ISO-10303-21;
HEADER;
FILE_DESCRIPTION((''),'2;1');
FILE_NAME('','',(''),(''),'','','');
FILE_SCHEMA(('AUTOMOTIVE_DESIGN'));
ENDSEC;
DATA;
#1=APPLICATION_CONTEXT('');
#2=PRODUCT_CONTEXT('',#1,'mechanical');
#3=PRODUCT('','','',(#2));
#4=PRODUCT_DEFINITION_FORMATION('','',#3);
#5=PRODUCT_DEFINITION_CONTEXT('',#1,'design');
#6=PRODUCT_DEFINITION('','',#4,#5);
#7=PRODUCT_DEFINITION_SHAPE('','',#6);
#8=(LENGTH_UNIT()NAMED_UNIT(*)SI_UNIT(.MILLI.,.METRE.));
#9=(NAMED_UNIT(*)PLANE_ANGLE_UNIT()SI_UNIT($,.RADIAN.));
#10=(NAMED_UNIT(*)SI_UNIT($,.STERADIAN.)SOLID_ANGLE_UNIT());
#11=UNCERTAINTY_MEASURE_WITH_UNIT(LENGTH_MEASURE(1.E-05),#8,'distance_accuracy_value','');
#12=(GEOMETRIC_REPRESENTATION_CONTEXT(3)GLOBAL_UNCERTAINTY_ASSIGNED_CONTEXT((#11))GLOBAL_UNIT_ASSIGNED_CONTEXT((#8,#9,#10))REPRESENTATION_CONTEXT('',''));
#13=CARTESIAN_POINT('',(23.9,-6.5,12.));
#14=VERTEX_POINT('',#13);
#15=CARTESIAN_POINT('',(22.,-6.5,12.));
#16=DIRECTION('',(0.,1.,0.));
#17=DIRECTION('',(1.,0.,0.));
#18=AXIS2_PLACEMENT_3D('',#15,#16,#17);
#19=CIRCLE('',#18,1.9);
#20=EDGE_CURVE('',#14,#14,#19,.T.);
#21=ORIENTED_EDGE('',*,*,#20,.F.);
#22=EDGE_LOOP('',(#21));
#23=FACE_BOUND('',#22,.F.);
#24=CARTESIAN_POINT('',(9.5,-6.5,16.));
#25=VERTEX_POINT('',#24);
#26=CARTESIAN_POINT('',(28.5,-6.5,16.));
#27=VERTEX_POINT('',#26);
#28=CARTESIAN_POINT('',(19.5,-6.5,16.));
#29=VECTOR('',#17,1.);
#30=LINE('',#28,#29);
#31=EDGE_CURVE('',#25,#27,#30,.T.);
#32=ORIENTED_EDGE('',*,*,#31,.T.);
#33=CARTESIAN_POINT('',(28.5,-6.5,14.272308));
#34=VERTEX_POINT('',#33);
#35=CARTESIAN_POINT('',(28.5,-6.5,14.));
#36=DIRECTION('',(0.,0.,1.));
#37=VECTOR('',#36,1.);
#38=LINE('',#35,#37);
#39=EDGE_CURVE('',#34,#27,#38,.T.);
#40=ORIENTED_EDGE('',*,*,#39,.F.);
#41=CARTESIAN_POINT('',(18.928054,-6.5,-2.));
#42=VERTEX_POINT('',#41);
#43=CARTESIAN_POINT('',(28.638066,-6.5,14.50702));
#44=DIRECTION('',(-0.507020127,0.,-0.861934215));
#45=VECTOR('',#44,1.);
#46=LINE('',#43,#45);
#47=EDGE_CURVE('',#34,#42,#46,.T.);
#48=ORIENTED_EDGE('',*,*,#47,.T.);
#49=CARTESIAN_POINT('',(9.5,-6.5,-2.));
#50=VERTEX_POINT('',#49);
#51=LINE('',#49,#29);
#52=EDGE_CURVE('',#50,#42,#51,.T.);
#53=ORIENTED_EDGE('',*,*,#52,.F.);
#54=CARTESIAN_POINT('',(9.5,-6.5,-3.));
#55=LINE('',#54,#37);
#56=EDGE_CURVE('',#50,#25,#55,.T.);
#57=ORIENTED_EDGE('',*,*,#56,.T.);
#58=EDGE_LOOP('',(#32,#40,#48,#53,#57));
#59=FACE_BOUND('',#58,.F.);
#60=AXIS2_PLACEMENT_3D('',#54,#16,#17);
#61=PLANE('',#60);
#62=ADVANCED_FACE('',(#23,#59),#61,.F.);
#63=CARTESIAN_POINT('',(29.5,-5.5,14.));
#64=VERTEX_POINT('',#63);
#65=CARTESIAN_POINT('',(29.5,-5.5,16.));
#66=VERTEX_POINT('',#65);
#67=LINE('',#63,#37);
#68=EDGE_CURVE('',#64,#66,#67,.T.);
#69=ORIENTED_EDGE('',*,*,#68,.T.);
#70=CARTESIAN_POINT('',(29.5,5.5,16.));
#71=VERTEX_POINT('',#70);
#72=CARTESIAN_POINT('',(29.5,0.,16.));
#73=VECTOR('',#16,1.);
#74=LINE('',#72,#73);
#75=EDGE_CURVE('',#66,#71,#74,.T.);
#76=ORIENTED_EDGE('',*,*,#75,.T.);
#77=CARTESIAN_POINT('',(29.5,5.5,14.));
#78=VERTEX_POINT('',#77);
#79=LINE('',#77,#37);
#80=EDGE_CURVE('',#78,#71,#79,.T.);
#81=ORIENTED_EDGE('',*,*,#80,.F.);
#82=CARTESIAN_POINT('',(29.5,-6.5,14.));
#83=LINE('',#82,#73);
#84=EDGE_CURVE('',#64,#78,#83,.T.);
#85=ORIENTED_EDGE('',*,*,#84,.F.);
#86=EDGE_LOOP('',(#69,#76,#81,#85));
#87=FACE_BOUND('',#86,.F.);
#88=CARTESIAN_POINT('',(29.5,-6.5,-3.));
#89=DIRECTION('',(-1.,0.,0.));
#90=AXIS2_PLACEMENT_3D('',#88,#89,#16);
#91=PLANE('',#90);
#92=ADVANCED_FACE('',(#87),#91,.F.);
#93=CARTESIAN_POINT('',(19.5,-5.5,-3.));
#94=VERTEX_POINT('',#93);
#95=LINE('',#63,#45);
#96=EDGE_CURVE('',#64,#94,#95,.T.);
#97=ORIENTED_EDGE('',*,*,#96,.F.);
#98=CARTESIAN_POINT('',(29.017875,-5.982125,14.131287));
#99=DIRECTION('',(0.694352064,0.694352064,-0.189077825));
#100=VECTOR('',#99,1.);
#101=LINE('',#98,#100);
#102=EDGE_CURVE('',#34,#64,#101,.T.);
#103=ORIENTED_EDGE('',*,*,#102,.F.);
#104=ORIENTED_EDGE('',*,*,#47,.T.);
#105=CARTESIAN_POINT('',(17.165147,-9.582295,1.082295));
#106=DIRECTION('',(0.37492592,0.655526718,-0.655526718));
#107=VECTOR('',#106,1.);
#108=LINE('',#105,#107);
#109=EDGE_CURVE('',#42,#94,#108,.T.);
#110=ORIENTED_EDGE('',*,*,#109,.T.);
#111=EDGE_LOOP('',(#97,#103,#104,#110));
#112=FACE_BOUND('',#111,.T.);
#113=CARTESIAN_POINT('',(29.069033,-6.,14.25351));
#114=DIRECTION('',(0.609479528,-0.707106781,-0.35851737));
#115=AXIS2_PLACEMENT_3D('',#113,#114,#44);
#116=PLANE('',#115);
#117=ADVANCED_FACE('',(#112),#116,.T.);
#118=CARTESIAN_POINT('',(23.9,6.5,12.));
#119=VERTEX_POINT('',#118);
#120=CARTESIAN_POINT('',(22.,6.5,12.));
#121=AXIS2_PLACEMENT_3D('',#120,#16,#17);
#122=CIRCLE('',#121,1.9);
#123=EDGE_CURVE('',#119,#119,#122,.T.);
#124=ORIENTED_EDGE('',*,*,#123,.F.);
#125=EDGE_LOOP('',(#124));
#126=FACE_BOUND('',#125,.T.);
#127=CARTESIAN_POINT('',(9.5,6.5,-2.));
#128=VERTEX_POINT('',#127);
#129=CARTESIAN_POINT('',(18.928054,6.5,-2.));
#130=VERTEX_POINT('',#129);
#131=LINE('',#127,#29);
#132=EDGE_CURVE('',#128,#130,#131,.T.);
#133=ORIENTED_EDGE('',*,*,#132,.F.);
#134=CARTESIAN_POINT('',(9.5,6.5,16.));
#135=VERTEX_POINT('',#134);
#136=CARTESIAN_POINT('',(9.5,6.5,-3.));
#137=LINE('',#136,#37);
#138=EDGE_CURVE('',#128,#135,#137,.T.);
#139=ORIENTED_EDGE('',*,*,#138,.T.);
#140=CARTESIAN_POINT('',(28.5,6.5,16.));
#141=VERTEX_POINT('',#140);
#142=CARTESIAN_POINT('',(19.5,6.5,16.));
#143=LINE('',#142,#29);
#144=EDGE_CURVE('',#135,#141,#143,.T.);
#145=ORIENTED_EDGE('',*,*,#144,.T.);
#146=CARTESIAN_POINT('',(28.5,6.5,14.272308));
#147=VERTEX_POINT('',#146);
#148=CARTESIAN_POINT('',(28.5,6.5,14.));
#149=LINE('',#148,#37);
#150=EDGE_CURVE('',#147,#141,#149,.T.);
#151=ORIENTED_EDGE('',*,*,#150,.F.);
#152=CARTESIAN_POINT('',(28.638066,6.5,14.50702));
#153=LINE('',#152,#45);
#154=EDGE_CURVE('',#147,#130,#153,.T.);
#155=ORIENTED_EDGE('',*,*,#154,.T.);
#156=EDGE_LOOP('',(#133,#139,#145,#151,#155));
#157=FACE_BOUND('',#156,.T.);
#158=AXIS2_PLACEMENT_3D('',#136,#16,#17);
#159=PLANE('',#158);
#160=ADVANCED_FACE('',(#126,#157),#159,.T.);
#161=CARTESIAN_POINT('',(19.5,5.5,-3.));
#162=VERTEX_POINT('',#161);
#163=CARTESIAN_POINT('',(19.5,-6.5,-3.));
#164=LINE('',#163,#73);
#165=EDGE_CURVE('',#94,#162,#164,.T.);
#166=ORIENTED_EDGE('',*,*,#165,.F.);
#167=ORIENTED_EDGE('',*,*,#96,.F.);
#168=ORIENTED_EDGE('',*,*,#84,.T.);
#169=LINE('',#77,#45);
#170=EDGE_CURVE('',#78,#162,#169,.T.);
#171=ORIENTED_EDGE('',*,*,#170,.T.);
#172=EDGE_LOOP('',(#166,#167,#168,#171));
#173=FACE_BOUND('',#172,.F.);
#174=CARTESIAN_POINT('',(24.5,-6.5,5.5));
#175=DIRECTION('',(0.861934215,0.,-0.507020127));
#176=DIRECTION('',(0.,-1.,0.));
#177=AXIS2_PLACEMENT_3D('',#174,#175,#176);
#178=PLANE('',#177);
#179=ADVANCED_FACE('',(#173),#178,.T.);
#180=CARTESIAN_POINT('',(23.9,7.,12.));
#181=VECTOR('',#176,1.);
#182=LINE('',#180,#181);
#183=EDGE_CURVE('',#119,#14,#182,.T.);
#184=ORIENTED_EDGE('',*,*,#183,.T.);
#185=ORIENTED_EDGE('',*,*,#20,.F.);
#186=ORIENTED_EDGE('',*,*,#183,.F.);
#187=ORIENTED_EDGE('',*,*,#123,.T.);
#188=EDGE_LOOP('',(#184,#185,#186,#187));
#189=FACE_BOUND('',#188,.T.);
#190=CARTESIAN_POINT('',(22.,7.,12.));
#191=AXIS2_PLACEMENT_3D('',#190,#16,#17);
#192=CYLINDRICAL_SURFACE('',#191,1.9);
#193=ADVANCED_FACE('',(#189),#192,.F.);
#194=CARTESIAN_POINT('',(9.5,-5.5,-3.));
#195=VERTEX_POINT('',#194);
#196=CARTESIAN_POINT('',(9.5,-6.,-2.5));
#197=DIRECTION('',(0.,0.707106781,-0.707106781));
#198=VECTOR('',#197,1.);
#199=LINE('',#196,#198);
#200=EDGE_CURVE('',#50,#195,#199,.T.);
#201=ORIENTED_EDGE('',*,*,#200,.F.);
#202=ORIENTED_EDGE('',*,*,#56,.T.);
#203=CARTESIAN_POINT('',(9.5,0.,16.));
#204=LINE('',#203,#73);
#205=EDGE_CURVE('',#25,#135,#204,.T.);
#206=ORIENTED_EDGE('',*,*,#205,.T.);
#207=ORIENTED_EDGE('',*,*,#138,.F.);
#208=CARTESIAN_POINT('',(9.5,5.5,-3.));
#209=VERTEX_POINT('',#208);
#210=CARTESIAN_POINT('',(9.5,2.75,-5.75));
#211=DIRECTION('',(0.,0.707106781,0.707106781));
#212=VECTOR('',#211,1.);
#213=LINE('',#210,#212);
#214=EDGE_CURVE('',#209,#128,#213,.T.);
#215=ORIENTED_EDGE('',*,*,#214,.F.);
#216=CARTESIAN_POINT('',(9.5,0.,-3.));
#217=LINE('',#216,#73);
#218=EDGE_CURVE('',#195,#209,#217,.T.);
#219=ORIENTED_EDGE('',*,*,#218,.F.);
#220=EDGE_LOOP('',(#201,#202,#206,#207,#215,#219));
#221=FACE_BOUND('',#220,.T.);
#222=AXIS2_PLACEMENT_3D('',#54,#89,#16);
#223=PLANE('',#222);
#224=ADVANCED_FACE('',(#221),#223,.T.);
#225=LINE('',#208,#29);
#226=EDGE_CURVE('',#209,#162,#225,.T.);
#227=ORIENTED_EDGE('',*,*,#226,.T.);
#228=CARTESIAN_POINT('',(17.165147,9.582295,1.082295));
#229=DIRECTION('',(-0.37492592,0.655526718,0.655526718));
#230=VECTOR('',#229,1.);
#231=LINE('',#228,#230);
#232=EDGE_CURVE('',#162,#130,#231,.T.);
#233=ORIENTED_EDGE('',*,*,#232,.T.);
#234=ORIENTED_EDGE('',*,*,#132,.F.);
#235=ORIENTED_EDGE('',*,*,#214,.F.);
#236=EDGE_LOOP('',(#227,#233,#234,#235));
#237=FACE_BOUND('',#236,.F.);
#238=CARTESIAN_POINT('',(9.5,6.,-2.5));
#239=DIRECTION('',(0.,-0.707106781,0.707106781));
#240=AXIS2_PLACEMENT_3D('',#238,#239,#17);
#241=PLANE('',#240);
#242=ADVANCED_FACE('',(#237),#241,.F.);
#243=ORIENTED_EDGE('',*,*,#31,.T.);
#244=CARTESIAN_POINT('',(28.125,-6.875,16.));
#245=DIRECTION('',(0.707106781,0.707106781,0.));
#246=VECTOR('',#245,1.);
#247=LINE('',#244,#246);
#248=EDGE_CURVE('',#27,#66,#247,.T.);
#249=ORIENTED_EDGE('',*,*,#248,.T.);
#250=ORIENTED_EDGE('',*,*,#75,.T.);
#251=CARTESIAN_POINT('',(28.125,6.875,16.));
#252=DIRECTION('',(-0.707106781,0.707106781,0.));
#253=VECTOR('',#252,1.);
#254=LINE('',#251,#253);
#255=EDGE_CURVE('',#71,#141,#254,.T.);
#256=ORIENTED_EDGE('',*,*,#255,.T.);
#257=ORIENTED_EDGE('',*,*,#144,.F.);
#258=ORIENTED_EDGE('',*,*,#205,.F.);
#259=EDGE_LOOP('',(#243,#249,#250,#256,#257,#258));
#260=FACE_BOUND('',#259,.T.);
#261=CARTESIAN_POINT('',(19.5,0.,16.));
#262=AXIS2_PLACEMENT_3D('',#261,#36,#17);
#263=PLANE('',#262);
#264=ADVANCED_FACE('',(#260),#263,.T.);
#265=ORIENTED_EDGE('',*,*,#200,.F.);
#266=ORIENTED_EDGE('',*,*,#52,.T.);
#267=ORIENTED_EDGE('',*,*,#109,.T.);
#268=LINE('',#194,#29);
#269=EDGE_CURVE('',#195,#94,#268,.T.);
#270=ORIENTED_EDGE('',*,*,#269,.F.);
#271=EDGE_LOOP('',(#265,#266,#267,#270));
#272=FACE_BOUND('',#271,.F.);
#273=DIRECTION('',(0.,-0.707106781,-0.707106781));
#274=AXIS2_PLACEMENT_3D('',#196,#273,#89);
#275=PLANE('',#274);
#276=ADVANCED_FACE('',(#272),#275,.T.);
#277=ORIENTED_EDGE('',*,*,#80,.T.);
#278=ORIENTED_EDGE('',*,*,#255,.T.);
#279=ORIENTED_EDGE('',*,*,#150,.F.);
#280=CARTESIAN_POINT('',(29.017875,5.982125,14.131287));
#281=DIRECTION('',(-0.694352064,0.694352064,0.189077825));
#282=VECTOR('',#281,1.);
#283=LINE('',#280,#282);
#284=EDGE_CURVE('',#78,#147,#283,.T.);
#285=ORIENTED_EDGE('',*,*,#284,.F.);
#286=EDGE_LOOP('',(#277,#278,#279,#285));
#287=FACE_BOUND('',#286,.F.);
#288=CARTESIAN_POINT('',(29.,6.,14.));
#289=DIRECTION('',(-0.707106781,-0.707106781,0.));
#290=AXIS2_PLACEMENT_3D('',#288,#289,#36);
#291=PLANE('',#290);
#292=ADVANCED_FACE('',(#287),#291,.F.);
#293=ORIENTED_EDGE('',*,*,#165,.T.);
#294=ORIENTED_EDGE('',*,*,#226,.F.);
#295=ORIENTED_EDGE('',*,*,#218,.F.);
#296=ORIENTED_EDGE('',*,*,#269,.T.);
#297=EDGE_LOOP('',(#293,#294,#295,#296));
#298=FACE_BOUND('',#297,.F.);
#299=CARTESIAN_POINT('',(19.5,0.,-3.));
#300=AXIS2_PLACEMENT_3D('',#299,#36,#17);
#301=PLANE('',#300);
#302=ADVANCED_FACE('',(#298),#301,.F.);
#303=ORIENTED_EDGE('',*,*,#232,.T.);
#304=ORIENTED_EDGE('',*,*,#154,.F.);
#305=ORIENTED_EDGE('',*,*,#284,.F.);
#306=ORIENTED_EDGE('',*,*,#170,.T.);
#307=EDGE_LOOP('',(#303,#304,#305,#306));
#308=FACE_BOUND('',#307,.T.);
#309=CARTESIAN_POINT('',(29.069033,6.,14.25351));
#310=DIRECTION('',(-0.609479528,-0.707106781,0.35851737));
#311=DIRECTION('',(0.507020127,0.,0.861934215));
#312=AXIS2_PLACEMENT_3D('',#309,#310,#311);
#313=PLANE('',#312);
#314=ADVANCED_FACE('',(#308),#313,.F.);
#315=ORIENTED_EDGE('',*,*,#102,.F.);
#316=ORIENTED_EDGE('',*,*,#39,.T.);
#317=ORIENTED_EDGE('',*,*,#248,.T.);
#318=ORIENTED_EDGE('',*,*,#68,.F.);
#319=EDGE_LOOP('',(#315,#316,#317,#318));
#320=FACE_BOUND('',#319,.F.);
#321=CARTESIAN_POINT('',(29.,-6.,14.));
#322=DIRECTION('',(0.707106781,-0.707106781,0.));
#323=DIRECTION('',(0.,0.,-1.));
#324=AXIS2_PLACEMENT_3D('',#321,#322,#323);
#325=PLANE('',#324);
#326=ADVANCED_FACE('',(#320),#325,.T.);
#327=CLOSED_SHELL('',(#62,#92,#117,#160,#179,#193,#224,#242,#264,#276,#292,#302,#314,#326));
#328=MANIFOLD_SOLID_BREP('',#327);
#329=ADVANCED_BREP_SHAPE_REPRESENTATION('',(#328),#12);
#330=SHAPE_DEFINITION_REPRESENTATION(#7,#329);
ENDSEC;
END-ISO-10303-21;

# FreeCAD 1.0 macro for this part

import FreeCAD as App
import Part
import Sketcher

V = App.Vector
Q = App.Units.Quantity


def edges_at(feature, points):
    """Names of the edges that pass closest to the given points."""
    edges = feature.Shape.Edges
    near = lambda p: min(range(len(edges)), key=lambda i: edges[i].distToShape(Part.Vertex(*p))[0])
    return sorted({f"Edge{near(p) + 1}" for p in points})


def add_polygon(sketch, points):
    """Adds a closed chain of lines whose ends are joined by coincident constraints."""
    first, n = sketch.GeometryCount, len(points)
    for a, b in zip(points, points[1:] + points[:1]):
        sketch.addGeometry(Part.LineSegment(App.Vector(*a, 0), App.Vector(*b, 0)), False)
    for i in range(n):
        sketch.addConstraint(Sketcher.Constraint("Coincident", first + i, 2, first + (i + 1) % n, 1))

doc = App.newDocument("Part")
body = doc.addObject("PartDesign::Body", "Body")

sketch1 = body.newObject("Sketcher::SketchObject", "Sketch")
sketch1.AttachmentSupport = (doc.getObject("XZ_Plane"), [""])
sketch1.MapMode = "FlatFace"
sketch1.AttachmentOffset = App.Placement(V(0, 0, -7), App.Rotation())
sketch1.addGeometry(Part.Circle(V(22, 12, 0), V(0, 0, 1), 1.9), False)
sketch1.addConstraint(Sketcher.Constraint("Diameter", 0, Q("3.8 mm")))
sketch1.addConstraint(Sketcher.Constraint("DistanceX", -1, 1, 0, 3, Q("22 mm")))
sketch1.addConstraint(Sketcher.Constraint("DistanceY", -1, 1, 0, 3, Q("12 mm")))
pad1 = body.newObject("PartDesign::Pad", "Pad")
pad1.Profile = sketch1
pad1.Length = 14
body2 = doc.addObject("PartDesign::Body", "Body001")

sketch2 = body2.newObject("Sketcher::SketchObject", "Sketch001")
sketch2.AttachmentSupport = (doc.getObject("XY_Plane001"), [""])
sketch2.MapMode = "FlatFace"
sketch2.AttachmentOffset = App.Placement(V(0, 0, -3), App.Rotation())
add_polygon(sketch2, [(10, 6), (10, -6), (30, -6), (30, 6)])
sketch2.addConstraint(Sketcher.Constraint("Vertical", 0))
sketch2.addConstraint(Sketcher.Constraint("Horizontal", 1))
sketch2.addConstraint(Sketcher.Constraint("Vertical", 2))
sketch2.addConstraint(Sketcher.Constraint("Horizontal", 3))
sketch2.addConstraint(Sketcher.Constraint("DistanceX", 1, 1, 1, 2, Q("20 mm")))
sketch2.addConstraint(Sketcher.Constraint("DistanceY", 0, 2, 0, 1, Q("13 mm")))
sketch2.addConstraint(Sketcher.Constraint("DistanceX", -1, 1, 0, 2, Q("9.5 mm")))
sketch2.addConstraint(Sketcher.Constraint("DistanceY", 0, 2, -1, 1, Q("6.5 mm")))
pad2 = body2.newObject("PartDesign::Pad", "Pad001")
pad2.Profile = sketch2
pad2.Length = 19
doc.recompute()

chamfer = body2.newObject("PartDesign::Chamfer", "Chamfer")
chamfer.Base = (pad2, edges_at(pad2, [(29.5, 0, -3)]))
chamfer.ChamferType = "Two distances"
chamfer.Size = 17
chamfer.Size2 = 10
doc.recompute()

chamfer2 = body2.newObject("PartDesign::Chamfer", "Chamfer001")
chamfer2.Base = (chamfer, edges_at(chamfer, [
    (29.5, -6.5, 15),
    (29.5, 6.5, 15),
    (14.5, -6.5, -3),
    (24.5, -6.5, 5.5),
    (24.5, 6.5, 5.5),
    (14.5, 6.5, -3),
]))
chamfer2.Size = 1
doc.recompute()

boolean = body2.newObject("PartDesign::Boolean", "Boolean")
boolean.Type = "Cut"
boolean.addObjects([body])

doc.recompute()
